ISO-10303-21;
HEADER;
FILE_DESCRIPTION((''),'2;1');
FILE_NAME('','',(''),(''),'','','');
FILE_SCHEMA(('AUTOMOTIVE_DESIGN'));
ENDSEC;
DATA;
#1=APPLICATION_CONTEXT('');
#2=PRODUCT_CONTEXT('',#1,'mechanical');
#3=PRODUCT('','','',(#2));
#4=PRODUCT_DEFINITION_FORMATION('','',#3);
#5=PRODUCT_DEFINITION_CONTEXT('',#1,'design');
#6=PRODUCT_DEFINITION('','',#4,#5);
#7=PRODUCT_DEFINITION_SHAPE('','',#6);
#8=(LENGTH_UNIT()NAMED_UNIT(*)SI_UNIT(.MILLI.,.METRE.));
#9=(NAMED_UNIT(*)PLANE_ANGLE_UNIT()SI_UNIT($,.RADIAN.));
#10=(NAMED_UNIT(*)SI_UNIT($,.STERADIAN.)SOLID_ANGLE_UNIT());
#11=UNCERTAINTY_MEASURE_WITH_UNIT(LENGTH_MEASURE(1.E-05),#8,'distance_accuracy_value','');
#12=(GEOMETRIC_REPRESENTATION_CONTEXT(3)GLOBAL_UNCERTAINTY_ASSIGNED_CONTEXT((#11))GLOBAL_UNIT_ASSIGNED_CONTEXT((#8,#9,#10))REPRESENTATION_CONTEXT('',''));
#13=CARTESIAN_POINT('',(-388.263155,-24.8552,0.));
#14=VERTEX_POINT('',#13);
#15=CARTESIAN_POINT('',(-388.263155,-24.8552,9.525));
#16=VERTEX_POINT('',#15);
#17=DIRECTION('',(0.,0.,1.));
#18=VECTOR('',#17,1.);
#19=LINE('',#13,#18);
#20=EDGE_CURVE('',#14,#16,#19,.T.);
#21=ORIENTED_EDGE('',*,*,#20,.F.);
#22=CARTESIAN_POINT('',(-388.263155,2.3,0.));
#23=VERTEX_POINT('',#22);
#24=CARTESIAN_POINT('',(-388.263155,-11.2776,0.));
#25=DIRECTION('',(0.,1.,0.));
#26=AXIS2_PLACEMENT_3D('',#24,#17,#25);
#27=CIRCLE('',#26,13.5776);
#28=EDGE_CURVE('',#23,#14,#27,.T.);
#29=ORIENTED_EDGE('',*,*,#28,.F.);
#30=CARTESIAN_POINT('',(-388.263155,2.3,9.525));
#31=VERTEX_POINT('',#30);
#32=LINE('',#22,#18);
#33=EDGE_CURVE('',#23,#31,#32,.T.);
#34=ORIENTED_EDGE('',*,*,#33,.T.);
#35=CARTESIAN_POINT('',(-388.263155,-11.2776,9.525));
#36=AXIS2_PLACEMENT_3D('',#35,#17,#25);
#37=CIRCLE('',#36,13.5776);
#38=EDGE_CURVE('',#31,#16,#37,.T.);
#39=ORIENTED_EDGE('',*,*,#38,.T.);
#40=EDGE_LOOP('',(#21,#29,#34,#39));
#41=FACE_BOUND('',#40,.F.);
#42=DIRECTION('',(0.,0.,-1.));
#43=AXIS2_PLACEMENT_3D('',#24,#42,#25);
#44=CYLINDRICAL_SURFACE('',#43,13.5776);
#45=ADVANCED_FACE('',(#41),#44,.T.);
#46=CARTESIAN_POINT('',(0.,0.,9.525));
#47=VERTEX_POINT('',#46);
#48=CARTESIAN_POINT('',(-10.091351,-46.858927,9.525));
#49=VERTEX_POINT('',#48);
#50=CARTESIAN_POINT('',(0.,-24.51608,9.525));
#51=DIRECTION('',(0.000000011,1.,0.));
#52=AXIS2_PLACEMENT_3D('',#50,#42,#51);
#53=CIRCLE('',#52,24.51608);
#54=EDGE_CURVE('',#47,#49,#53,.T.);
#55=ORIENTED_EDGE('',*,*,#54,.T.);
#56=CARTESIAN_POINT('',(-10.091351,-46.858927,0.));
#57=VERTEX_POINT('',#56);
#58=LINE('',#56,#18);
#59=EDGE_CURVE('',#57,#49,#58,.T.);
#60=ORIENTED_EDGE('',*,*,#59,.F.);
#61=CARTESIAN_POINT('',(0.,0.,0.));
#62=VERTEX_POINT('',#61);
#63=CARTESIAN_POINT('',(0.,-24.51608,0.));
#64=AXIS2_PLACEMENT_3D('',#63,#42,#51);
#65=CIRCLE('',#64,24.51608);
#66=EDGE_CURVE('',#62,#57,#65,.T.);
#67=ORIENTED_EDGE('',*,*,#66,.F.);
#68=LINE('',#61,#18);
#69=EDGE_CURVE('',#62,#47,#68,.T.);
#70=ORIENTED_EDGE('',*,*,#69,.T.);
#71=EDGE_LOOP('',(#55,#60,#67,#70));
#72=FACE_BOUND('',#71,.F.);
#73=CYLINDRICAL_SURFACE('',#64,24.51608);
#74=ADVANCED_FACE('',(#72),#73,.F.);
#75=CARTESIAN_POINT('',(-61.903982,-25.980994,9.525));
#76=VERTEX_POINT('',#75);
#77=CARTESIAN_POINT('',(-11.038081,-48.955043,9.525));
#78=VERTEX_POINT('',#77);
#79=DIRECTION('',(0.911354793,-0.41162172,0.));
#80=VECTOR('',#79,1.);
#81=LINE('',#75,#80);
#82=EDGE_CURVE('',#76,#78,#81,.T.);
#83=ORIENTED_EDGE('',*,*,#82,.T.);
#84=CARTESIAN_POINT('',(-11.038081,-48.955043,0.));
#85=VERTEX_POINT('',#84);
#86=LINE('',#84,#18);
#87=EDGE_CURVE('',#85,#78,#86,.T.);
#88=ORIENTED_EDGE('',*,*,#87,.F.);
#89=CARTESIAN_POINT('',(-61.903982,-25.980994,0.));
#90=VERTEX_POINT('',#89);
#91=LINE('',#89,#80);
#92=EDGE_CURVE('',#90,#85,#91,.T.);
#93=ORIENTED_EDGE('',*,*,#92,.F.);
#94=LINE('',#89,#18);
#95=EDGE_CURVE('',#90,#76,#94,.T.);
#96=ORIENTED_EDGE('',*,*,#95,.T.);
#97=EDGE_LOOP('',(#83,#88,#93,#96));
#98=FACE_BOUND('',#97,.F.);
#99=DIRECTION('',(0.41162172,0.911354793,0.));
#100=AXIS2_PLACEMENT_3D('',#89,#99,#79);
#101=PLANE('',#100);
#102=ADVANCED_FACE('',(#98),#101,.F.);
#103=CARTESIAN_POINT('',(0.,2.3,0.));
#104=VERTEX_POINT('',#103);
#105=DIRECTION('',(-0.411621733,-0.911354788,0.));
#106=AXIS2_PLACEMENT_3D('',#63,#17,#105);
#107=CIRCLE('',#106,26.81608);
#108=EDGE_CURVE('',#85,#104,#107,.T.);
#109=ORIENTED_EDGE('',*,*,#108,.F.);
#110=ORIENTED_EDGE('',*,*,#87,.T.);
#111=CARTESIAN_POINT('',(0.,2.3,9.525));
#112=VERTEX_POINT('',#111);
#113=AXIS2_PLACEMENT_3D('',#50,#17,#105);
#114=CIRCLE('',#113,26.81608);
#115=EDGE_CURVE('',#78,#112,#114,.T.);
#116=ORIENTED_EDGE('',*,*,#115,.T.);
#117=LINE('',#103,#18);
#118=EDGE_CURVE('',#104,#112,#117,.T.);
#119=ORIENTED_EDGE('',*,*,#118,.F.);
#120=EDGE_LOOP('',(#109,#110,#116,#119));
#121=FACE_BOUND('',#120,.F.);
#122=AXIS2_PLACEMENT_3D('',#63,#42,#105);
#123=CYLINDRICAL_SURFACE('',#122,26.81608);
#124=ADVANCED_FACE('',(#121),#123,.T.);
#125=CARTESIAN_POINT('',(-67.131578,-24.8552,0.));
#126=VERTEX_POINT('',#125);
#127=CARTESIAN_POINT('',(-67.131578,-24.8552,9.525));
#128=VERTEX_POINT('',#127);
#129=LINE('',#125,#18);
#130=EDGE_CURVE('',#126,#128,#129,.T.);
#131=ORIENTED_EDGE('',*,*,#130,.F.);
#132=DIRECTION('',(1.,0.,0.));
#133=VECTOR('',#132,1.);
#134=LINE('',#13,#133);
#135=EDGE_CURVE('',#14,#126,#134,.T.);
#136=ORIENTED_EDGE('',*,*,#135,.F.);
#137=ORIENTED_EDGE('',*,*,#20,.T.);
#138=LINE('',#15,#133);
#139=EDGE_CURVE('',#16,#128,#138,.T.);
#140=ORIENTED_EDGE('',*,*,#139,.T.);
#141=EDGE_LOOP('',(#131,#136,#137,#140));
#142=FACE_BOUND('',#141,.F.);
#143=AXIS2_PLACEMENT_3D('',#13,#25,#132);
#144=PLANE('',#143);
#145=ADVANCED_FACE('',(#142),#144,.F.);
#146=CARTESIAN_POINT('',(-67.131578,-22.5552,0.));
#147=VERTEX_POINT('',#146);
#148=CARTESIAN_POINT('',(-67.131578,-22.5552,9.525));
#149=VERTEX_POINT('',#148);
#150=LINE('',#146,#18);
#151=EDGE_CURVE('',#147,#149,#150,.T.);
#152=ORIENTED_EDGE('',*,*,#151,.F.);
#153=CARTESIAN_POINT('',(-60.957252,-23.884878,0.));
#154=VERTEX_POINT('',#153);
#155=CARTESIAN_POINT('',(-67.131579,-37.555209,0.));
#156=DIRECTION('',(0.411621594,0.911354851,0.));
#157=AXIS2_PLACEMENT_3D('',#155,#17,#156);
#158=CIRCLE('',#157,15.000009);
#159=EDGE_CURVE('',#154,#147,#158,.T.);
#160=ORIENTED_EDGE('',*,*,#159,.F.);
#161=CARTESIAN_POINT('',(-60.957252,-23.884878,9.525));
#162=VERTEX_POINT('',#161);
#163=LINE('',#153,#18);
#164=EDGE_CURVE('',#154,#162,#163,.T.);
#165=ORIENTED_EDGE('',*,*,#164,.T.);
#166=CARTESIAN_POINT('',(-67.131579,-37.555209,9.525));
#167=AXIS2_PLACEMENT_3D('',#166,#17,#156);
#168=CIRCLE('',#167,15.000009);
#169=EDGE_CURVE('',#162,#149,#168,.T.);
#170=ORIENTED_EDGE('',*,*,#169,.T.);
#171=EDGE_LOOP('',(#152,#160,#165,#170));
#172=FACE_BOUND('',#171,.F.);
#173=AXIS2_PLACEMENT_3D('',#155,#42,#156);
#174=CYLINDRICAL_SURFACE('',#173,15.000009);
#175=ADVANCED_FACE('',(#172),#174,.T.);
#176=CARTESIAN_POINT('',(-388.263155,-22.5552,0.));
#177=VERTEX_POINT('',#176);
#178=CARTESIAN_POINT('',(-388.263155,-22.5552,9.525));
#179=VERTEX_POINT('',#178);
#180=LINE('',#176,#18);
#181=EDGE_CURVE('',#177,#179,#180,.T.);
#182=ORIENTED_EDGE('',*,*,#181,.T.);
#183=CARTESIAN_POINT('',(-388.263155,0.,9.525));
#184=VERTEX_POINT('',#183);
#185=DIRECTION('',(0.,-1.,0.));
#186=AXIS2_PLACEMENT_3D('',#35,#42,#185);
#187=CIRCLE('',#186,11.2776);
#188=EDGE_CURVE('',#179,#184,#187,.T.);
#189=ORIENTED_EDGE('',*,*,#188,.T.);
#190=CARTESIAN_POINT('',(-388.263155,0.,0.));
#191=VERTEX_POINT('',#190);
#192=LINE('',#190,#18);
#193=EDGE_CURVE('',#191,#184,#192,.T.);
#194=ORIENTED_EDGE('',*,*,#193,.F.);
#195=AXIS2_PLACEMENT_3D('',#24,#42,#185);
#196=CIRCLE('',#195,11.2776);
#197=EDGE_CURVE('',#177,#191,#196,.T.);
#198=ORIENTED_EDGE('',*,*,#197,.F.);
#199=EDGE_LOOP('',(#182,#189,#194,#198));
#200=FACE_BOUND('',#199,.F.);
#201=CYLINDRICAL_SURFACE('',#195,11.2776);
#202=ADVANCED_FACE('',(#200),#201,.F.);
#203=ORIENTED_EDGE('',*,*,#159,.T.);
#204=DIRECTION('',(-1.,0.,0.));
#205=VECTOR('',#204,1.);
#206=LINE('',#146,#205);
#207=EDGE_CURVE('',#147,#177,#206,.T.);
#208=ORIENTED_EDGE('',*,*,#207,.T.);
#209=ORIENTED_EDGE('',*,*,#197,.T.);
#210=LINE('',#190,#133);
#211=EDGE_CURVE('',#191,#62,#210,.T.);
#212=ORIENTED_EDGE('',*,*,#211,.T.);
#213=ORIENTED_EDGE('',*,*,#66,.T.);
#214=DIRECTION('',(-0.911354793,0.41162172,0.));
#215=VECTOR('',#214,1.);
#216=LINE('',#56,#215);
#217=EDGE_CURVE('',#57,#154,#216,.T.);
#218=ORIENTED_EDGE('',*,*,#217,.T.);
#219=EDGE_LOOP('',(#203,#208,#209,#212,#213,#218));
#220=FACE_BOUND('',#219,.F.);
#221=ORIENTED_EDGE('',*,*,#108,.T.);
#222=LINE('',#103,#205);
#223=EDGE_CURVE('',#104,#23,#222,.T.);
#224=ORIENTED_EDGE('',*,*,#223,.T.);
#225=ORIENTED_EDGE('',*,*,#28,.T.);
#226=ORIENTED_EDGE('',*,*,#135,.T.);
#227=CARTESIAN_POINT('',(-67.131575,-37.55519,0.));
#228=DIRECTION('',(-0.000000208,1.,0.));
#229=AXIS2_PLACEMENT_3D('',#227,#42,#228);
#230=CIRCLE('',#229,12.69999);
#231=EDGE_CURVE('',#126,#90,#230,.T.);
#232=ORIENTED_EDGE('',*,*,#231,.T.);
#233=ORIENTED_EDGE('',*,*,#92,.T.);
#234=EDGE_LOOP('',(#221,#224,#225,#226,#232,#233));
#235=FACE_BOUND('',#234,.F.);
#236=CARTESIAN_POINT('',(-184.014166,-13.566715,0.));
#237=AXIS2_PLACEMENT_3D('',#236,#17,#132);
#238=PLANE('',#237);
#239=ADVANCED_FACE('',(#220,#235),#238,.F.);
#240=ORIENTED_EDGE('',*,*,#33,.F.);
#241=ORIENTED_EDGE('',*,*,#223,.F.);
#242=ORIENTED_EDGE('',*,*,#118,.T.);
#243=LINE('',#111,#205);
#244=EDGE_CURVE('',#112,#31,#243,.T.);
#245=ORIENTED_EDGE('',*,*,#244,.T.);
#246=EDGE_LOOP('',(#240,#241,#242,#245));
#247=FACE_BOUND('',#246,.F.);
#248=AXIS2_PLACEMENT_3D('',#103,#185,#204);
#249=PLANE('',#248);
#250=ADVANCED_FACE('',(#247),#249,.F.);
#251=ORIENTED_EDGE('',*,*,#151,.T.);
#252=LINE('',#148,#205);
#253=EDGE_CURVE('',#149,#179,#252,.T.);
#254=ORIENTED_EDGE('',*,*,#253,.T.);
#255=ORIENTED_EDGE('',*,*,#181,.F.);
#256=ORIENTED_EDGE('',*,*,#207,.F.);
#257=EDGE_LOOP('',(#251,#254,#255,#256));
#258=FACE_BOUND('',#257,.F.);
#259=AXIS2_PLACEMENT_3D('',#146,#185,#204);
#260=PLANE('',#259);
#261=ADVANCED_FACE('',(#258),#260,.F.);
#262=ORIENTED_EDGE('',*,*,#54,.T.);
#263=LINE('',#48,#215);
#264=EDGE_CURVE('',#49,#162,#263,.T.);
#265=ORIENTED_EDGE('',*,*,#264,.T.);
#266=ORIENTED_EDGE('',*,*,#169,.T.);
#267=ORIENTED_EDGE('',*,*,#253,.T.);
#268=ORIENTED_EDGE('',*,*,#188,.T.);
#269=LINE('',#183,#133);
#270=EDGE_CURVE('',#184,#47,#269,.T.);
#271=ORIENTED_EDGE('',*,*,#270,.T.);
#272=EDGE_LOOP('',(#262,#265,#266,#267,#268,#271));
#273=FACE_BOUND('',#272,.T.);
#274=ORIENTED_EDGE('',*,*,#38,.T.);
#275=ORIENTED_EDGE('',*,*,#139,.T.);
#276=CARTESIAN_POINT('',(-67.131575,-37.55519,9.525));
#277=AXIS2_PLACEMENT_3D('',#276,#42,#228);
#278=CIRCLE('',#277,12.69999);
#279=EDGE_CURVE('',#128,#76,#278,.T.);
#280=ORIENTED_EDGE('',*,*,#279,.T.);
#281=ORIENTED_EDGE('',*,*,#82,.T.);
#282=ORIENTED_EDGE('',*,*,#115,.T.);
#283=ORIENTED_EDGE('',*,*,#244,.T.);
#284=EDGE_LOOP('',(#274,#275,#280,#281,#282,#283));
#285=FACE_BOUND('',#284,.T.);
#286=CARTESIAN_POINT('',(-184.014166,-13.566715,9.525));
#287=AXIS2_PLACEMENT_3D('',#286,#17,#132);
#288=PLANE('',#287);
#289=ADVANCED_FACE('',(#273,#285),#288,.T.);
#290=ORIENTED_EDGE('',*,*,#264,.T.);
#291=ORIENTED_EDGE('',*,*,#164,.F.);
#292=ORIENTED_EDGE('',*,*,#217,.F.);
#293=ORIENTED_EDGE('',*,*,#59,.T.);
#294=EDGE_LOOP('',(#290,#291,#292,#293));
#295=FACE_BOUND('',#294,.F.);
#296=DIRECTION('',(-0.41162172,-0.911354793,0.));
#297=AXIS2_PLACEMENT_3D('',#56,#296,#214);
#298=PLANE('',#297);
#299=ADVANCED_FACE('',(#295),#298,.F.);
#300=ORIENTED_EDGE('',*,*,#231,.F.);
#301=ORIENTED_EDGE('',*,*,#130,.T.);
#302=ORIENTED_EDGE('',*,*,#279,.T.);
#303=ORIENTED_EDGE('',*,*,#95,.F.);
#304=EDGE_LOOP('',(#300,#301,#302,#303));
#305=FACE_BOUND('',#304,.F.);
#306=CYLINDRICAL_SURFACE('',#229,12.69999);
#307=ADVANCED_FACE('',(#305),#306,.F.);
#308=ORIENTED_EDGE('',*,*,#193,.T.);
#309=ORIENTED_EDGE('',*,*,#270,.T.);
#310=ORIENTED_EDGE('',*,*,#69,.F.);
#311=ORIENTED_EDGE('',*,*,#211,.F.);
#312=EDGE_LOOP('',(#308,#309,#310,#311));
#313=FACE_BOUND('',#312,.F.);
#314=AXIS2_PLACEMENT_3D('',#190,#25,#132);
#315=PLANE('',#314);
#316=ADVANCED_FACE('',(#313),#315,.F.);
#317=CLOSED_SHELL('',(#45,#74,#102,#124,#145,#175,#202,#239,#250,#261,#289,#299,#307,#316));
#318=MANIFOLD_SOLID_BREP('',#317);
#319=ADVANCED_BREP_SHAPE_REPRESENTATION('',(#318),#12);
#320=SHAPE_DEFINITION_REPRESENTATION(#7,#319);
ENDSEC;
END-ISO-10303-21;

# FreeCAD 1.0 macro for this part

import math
import FreeCAD as App
import Part
import Sketcher
from FreeCAD import Vector
Q = App.Units.Quantity

doc = App.newDocument("Part")
params = doc.addObject("Spreadsheet::Sheet", "Params")
for row, (alias, value) in enumerate([
    ("sketch1_radius", "0.444 in"),
    ("pad1_length", "0.375 in"),
], start=1):
    params.set(f"A{row}", alias)
    params.set(f"B{row}", "=" + value)
    params.setAlias(f"B{row}", alias)

body = doc.addObject("PartDesign::Body", "Body")

sketch1 = body.newObject("Sketcher::SketchObject", "Sketch")
sketch1.AttachmentSupport = (doc.getObject("XY_Plane"), [""])
sketch1.MapMode = "FlatFace"
sketch1.addGeometry([
    Part.LineSegment(Vector(0, 2, 0), Vector(-388, 2, 0)),
    Part.ArcOfCircle(Part.Circle(Vector(-388, -11, 0), Vector(0, 0, 1), 14), math.radians(90), math.radians(270)),
    Part.LineSegment(Vector(-388, -25, 0), Vector(-67, -25, 0)),
    Part.ArcOfCircle(Part.Circle(Vector(-67, -38, 0), Vector(0, 0, 1), 13), math.radians(66), math.radians(90)),
    Part.LineSegment(Vector(-62, -26, 0), Vector(-11, -49, 0)),
    Part.ArcOfCircle(Part.Circle(Vector(0, -25, 0), Vector(0, 0, 1), 27), math.radians(-114), math.radians(90)),
    Part.LineSegment(Vector(-388, 0, 0), Vector(0, 0, 0)),
    Part.ArcOfCircle(Part.Circle(Vector(0, -25, 0), Vector(0, 0, 1), 25), math.radians(-114), math.radians(90)),
    Part.LineSegment(Vector(-10, -47, 0), Vector(-61, -24, 0)),
    Part.ArcOfCircle(Part.Circle(Vector(-67, -38, 0), Vector(0, 0, 1), 15), math.radians(66), math.radians(90)),
    Part.LineSegment(Vector(-67, -23, 0), Vector(-388, -23, 0)),
    Part.ArcOfCircle(Part.Circle(Vector(-388, -11, 0), Vector(0, 0, 1), 11), math.radians(90), math.radians(270)),
], False)
sketch1.addConstraint([
    Sketcher.Constraint("Tangent", 0, 2, 1, 1),
    Sketcher.Constraint("Tangent", 1, 2, 2, 1),
    Sketcher.Constraint("Tangent", 2, 2, 3, 2),
    Sketcher.Constraint("Tangent", 3, 1, 4, 1),
    Sketcher.Constraint("Tangent", 4, 2, 5, 1),
    Sketcher.Constraint("Tangent", 5, 2, 0, 1),
    Sketcher.Constraint("Tangent", 6, 2, 7, 2),
    Sketcher.Constraint("Tangent", 7, 1, 8, 1),
    Sketcher.Constraint("Tangent", 8, 2, 9, 1),
    Sketcher.Constraint("Tangent", 9, 2, 10, 1),
    Sketcher.Constraint("Tangent", 10, 2, 11, 2),
    Sketcher.Constraint("Tangent", 11, 1, 6, 1),
    Sketcher.Constraint("Horizontal", 0),
    Sketcher.Constraint("Horizontal", 2),
    Sketcher.Constraint("Horizontal", 6),
    Sketcher.Constraint("Horizontal", 10),
    Sketcher.Constraint("Coincident", 6, 2, -1, 1),
    Sketcher.Constraint("Coincident", 7, 3, 5, 3),
    Sketcher.Constraint("Coincident", 11, 3, 1, 3),
    Sketcher.Constraint("Parallel", 4, 8),
    Sketcher.Constraint("Vertical", 9, 3, 2, 2),
    Sketcher.Constraint("Radius", 11, Q("0.444 in")),
    Sketcher.Constraint("Radius", 7, Q("0.9652 in")),
    Sketcher.Constraint("Radius", 1, 13.5776),
    Sketcher.Constraint("Radius", 3, 12.69999),
    Sketcher.Constraint("Distance", 4, 55.8135),
    Sketcher.Constraint("DistanceX", 0, 2, 0, 1, 388.263155),
])
sketch1.setExpression("Constraints[21]", "Params.sketch1_radius")
pad1 = body.newObject("PartDesign::Pad", "Pad")
pad1.Profile = sketch1
pad1.setExpression("Length", "Params.pad1_length")

doc.recompute()
